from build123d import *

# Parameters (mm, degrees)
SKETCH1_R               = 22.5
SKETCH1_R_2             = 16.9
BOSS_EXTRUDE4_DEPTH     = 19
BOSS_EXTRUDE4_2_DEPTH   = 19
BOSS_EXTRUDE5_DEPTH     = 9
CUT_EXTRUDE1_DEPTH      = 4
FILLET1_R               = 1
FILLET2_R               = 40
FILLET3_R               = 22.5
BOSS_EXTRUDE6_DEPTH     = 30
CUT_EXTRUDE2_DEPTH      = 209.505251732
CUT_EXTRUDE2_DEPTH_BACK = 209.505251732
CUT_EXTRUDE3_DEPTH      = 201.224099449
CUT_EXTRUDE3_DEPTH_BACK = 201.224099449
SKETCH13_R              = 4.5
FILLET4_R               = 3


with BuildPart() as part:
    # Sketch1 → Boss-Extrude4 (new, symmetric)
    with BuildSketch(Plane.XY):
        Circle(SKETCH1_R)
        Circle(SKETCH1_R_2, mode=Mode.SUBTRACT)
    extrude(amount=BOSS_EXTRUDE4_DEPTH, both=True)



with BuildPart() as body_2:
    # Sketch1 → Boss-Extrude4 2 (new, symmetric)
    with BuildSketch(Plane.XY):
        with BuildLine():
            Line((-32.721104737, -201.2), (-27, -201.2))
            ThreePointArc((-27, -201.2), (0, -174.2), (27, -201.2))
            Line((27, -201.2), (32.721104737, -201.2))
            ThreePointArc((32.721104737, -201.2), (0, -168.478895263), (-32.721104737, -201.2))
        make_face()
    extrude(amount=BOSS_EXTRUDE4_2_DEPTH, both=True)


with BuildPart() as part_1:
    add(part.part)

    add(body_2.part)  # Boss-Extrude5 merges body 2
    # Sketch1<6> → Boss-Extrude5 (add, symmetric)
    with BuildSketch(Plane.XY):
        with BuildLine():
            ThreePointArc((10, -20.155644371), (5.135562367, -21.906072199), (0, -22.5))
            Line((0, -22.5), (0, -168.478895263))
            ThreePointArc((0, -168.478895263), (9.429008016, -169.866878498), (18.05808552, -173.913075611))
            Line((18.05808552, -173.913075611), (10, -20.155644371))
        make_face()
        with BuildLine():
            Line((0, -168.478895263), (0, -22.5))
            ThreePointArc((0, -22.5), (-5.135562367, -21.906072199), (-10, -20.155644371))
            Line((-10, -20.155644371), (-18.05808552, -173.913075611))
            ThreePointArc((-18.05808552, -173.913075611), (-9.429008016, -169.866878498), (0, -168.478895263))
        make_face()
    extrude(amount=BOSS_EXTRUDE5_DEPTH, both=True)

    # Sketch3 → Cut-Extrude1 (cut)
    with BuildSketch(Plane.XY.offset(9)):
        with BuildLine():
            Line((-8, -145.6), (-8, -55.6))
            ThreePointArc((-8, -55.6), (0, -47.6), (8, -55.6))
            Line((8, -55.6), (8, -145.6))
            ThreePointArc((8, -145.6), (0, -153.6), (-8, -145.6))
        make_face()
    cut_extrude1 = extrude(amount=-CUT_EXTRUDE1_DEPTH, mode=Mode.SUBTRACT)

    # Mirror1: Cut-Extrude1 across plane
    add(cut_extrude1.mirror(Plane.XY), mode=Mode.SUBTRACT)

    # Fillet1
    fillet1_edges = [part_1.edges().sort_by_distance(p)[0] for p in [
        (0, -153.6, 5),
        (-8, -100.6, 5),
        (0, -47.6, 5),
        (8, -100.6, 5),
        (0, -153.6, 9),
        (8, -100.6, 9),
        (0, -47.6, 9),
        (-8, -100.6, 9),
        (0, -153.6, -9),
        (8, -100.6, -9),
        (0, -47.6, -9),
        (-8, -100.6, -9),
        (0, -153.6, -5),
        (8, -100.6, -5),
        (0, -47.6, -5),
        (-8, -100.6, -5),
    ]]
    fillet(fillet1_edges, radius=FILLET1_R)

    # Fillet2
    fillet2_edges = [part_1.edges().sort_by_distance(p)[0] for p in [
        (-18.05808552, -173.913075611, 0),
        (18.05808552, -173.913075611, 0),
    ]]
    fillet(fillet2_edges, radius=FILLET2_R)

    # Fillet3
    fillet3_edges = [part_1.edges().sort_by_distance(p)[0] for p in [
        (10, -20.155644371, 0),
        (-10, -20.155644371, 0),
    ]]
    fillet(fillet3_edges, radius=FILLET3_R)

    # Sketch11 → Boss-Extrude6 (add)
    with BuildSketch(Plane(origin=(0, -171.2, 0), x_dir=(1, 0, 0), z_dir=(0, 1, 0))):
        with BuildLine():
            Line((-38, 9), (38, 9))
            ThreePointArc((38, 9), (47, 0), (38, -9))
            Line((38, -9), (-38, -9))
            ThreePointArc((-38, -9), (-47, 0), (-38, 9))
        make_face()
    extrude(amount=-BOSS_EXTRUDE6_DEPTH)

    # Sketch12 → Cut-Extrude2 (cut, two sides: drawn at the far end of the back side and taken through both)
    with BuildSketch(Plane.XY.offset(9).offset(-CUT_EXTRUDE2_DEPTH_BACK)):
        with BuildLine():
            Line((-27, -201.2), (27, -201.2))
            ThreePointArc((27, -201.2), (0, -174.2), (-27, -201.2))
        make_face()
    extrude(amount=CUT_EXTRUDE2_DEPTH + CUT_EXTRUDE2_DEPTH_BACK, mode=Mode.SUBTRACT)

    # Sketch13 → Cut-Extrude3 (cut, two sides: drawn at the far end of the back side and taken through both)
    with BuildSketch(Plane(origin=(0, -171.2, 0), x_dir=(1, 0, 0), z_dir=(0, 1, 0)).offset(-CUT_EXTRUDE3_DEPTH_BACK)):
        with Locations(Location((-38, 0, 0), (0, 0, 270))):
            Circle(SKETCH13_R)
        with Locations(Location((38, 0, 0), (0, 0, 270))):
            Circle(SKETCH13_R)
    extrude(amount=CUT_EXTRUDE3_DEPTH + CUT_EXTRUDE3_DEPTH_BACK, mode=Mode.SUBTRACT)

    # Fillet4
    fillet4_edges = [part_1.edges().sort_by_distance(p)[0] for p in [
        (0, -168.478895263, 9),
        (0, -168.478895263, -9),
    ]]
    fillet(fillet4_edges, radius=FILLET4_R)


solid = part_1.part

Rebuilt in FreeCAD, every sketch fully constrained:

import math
import FreeCAD as App
import Part
import Sketcher
Q = App.Units.Quantity


def edges_at(feature, points):
    """Names of the edges that pass closest to the given points."""
    edges = feature.Shape.Edges
    near = lambda p: min(range(len(edges)), key=lambda i: edges[i].distToShape(Part.Vertex(*p))[0])
    return sorted({f"Edge{near(p) + 1}" for p in points})

doc = App.newDocument("Part")
params = doc.addObject("Spreadsheet::Sheet", "Params")
for row, (alias, value) in enumerate([
    ("sketch1_diameter", "45 mm"),
    ("sketch1_diameter2", "33.8 mm"),
    ("pad1_length", "38 mm"),
    ("sketch2_radius", "27 mm"),
    ("pad2_length", "38 mm"),
    ("sketch3_radius", "22.5 mm"),
    ("pad3_length", "18 mm"),
    ("sketch4_radius", "8 mm"),
    ("sketch4_height", "90 mm"),
    ("pocket1_length", "4 mm"),
    ("fillet_radius", "1 mm"),
    ("fillet2_radius", "40 mm"),
    ("fillet3_radius", "22.5 mm"),
    ("sketch5_radius", "9 mm"),
    ("sketch5_width", "76 mm"),
    ("pad4_length", "30 mm"),
    ("sketch6_radius", "27 mm"),
    ("sketch7_diameter", "9 mm"),
    ("fillet4_radius", "3 mm"),
], start=1):
    params.set(f"A{row}", alias)
    params.set(f"B{row}", "=" + value)
    params.setAlias(f"B{row}", alias)

body = doc.addObject("PartDesign::Body", "Body")

sketch1 = body.newObject("Sketcher::SketchObject", "Sketch")
sketch1.AttachmentSupport = (doc.getObject("XY_Plane"), [""])
sketch1.MapMode = "FlatFace"
sketch1.addGeometry([
    Part.Circle(App.Vector(0, 0, 0), App.Vector(0, 0, 1), 22.5),
    Part.Circle(App.Vector(0, 0, 0), App.Vector(0, 0, 1), 16.9),
], False)
sketch1.addConstraint([
    Sketcher.Constraint("Coincident", 0, 3, -1, 1),
    Sketcher.Constraint("Coincident", 1, 3, -1, 1),
    Sketcher.Constraint("Diameter", 0, Q("45 mm")),
    Sketcher.Constraint("Diameter", 1, Q("33.8 mm")),
])
sketch1.setExpression("Constraints[2]", "Params.sketch1_diameter")
sketch1.setExpression("Constraints[3]", "Params.sketch1_diameter2")
pad1 = body.newObject("PartDesign::Pad", "Pad")
pad1.Profile = sketch1
pad1.setExpression("Length", "Params.pad1_length")
pad1.Midplane = True
body2 = doc.addObject("PartDesign::Body", "Body001")

sketch2 = body2.newObject("Sketcher::SketchObject", "Sketch001")
sketch2.AttachmentSupport = (doc.getObject("XY_Plane001"), [""])
sketch2.MapMode = "FlatFace"
sketch2.addGeometry([
    Part.LineSegment(App.Vector(-32.721105, -201.2, 0), App.Vector(-27, -201.2, 0)),
    Part.ArcOfCircle(Part.Circle(App.Vector(0, -201.2, 0), App.Vector(0, 0, 1), 27), math.radians(0), math.radians(180)),
    Part.LineSegment(App.Vector(27, -201.2, 0), App.Vector(32.721105, -201.2, 0)),
    Part.ArcOfCircle(Part.Circle(App.Vector(0, -201.2, 0), App.Vector(0, 0, 1), 32.721105), math.radians(0), math.radians(180)),
], False)
sketch2.addConstraint([
    Sketcher.Constraint("Coincident", 0, 2, 1, 2),
    Sketcher.Constraint("Coincident", 1, 1, 2, 1),
    Sketcher.Constraint("Coincident", 2, 2, 3, 1),
    Sketcher.Constraint("Coincident", 3, 2, 0, 1),
    Sketcher.Constraint("Horizontal", 0),
    Sketcher.Constraint("Horizontal", 2),
    Sketcher.Constraint("Coincident", 3, 3, 1, 3),
    Sketcher.Constraint("Symmetric", 0, 2, 1, 1, -2),
    Sketcher.Constraint("Horizontal", 3, 3, 0, 2),
    Sketcher.Constraint("Radius", 1, Q("27 mm")),
    Sketcher.Constraint("DistanceY", 1, 3, -1, 1, Q("201.2 mm")),
    Sketcher.Constraint("Radius", 3, Q("32.721105 mm")),
])
sketch2.setExpression("Constraints[9]", "Params.sketch2_radius")
pad2 = body2.newObject("PartDesign::Pad", "Pad001")
pad2.Profile = sketch2
pad2.setExpression("Length", "Params.pad2_length")
pad2.Midplane = True
body.AllowCompound = True
doc.recompute()

boolean = body.newObject("PartDesign::Boolean", "Boolean")
boolean.Type = "Fuse"
boolean.addObjects([body2])

sketch3 = body.newObject("Sketcher::SketchObject", "Sketch002")
sketch3.AttachmentSupport = (doc.getObject("XY_Plane"), [""])
sketch3.MapMode = "FlatFace"
sketch3.addGeometry([
    Part.ArcOfCircle(Part.Circle(App.Vector(0, 0, 0), App.Vector(0, 0, 1), 22.5), math.radians(-90), math.radians(-63.6122)),
    Part.ArcOfCircle(Part.Circle(App.Vector(0, 0, 0), App.Vector(0, 0, 1), 22.5), math.radians(-116.3878), math.radians(-90)),
    Part.LineSegment(App.Vector(-10, -20.155644, 0), App.Vector(-18.058086, -173.913076, 0)),
    Part.ArcOfCircle(Part.Circle(App.Vector(0, -201.2, 0), App.Vector(0, 0, 1), 32.721105), math.radians(90), math.radians(123.496005)),
    Part.ArcOfCircle(Part.Circle(App.Vector(0, -201.2, 0), App.Vector(0, 0, 1), 32.721105), math.radians(56.503995), math.radians(90)),
    Part.LineSegment(App.Vector(18.058086, -173.913076, 0), App.Vector(10, -20.155644, 0)),
], False)
sketch3.addConstraint([
    Sketcher.Constraint("Tangent", 0, 1, 1, 2),
    Sketcher.Constraint("Coincident", 1, 1, 2, 1),
    Sketcher.Constraint("Coincident", 2, 2, 3, 2),
    Sketcher.Constraint("Tangent", 3, 1, 4, 2),
    Sketcher.Constraint("Coincident", 4, 1, 5, 1),
    Sketcher.Constraint("Coincident", 5, 2, 0, 2),
    Sketcher.Constraint("Coincident", 0, 3, -1, 1),
    Sketcher.Constraint("Equal", 0, 1),
    Sketcher.Constraint("Equal", 3, 4),
    Sketcher.Constraint("Symmetric", 2, 2, 4, 1, -2),
    Sketcher.Constraint("PointOnObject", 0, 1, -2),
    Sketcher.Constraint("PointOnObject", 3, 1, -2),
    Sketcher.Constraint("Horizontal", 1, 1, 5, 2),
    Sketcher.Constraint("Radius", 0, Q("22.5 mm")),
    Sketcher.Constraint("Angle", 2, Q("-93 deg")),
    Sketcher.Constraint("DistanceX", 1, 1, -1, 1, Q("10 mm")),
    Sketcher.Constraint("DistanceY", 3, 3, -1, 1, Q("201.2 mm")),
    Sketcher.Constraint("Radius", 3, Q("32.721105 mm")),
])
sketch3.setExpression("Constraints[13]", "Params.sketch3_radius")
pad3 = body.newObject("PartDesign::Pad", "Pad002")
pad3.Profile = sketch3
pad3.setExpression("Length", "Params.pad3_length")
pad3.Midplane = True

sketch4 = body.newObject("Sketcher::SketchObject", "Sketch003")
sketch4.AttachmentSupport = (doc.getObject("XY_Plane"), [""])
sketch4.MapMode = "FlatFace"
sketch4.AttachmentOffset = App.Placement(App.Vector(0, 0, 9), App.Rotation())
sketch4.addGeometry([
    Part.LineSegment(App.Vector(-8, -55.6, 0), App.Vector(-8, -145.6, 0)),
    Part.ArcOfCircle(Part.Circle(App.Vector(0, -145.6, 0), App.Vector(0, 0, 1), 8), math.radians(180), math.radians(360)),
    Part.LineSegment(App.Vector(8, -145.6, 0), App.Vector(8, -55.6, 0)),
    Part.ArcOfCircle(Part.Circle(App.Vector(0, -55.6, 0), App.Vector(0, 0, 1), 8), math.radians(0), math.radians(180)),
], False)
sketch4.addConstraint([
    Sketcher.Constraint("Tangent", 0, 2, 1, 1),
    Sketcher.Constraint("Tangent", 1, 2, 2, 1),
    Sketcher.Constraint("Tangent", 2, 2, 3, 1),
    Sketcher.Constraint("Tangent", 3, 2, 0, 1),
    Sketcher.Constraint("Vertical", 0),
    Sketcher.Constraint("Vertical", 2),
    Sketcher.Constraint("PointOnObject", 1, 3, -2),
    Sketcher.Constraint("Radius", 1, Q("8 mm")),
    Sketcher.Constraint("DistanceY", 0, 2, 0, 1, Q("90 mm")),
    Sketcher.Constraint("DistanceY", 1, 3, -1, 1, Q("145.6 mm")),
])
sketch4.setExpression("Constraints[7]", "Params.sketch4_radius")
sketch4.setExpression("Constraints[8]", "Params.sketch4_height")
pocket1 = body.newObject("PartDesign::Pocket", "Pocket")
pocket1.Profile = sketch4
pocket1.setExpression("Length", "Params.pocket1_length")
doc.recompute()

mirrored = body.newObject("PartDesign::Mirrored", "Mirrored")
mirrored.Originals = [pocket1]
mirrored.MirrorPlane = (doc.getObject("XY_Plane"), [""])
body.Tip = mirrored
doc.recompute()

fillet = body.newObject("PartDesign::Fillet", "Fillet")
fillet.Base = (mirrored, edges_at(mirrored, [
    (0, -153.6, 5),
    (-8, -100.6, 5),
    (0, -47.6, 5),
    (8, -100.6, 5),
    (0, -153.6, 9),
    (8, -100.6, 9),
    (0, -47.6, 9),
    (-8, -100.6, 9),
    (0, -153.6, -9),
    (8, -100.6, -9),
    (0, -47.6, -9),
    (-8, -100.6, -9),
    (0, -153.6, -5),
    (8, -100.6, -5),
    (0, -47.6, -5),
    (-8, -100.6, -5),
]))
fillet.setExpression("Radius", "Params.fillet_radius")
doc.recompute()

fillet2 = body.newObject("PartDesign::Fillet", "Fillet001")
fillet2.Base = (fillet, edges_at(fillet, [(-18.058, -173.913, 0), (18.058, -173.913, 0)]))
fillet2.setExpression("Radius", "Params.fillet2_radius")
doc.recompute()

fillet3 = body.newObject("PartDesign::Fillet", "Fillet002")
fillet3.Base = (fillet2, edges_at(fillet2, [(10, -20.156, 0), (-10, -20.156, 0)]))
fillet3.setExpression("Radius", "Params.fillet3_radius")

sketch5 = body.newObject("Sketcher::SketchObject", "Sketch004")
sketch5.AttachmentSupport = (doc.getObject("XZ_Plane"), [""])
sketch5.MapMode = "FlatFace"
sketch5.AttachmentOffset = App.Placement(App.Vector(0, 0, 171.2), App.Rotation())
sketch5.addGeometry([
    Part.LineSegment(App.Vector(38, -9, 0), App.Vector(-38, -9, 0)),
    Part.ArcOfCircle(Part.Circle(App.Vector(-38, 0, 0), App.Vector(0, 0, 1), 9), math.radians(90), math.radians(270)),
    Part.LineSegment(App.Vector(-38, 9, 0), App.Vector(38, 9, 0)),
    Part.ArcOfCircle(Part.Circle(App.Vector(38, 0, 0), App.Vector(0, 0, 1), 9), math.radians(-90), math.radians(90)),
], False)
sketch5.addConstraint([
    Sketcher.Constraint("Tangent", 0, 2, 1, 2),
    Sketcher.Constraint("Tangent", 1, 1, 2, 1),
    Sketcher.Constraint("Tangent", 2, 2, 3, 2),
    Sketcher.Constraint("Tangent", 3, 1, 0, 1),
    Sketcher.Constraint("Horizontal", 0),
    Sketcher.Constraint("Horizontal", 2),
    Sketcher.Constraint("Symmetric", 1, 3, 3, 3, -1, 1),
    Sketcher.Constraint("Radius", 1, Q("9 mm")),
    Sketcher.Constraint("DistanceX", 0, 2, 0, 1, Q("76 mm")),
])
sketch5.setExpression("Constraints[7]", "Params.sketch5_radius")
sketch5.setExpression("Constraints[8]", "Params.sketch5_width")
pad4 = body.newObject("PartDesign::Pad", "Pad003")
pad4.Profile = sketch5
pad4.setExpression("Length", "Params.pad4_length")

sketch6 = body.newObject("Sketcher::SketchObject", "Sketch005")
sketch6.AttachmentSupport = (doc.getObject("XY_Plane"), [""])
sketch6.MapMode = "FlatFace"
sketch6.AttachmentOffset = App.Placement(App.Vector(0, 0, 9), App.Rotation())
sketch6.addGeometry([
    Part.LineSegment(App.Vector(-27, -201.2, 0), App.Vector(27, -201.2, 0)),
    Part.ArcOfCircle(Part.Circle(App.Vector(0, -201.2, 0), App.Vector(0, 0, 1), 27), math.radians(0), math.radians(180)),
], False)
sketch6.addConstraint([
    Sketcher.Constraint("Coincident", 0, 1, 1, 2),
    Sketcher.Constraint("Coincident", 1, 1, 0, 2),
    Sketcher.Constraint("Horizontal", 0),
    Sketcher.Constraint("PointOnObject", 1, 3, -2),
    Sketcher.Constraint("Horizontal", 1, 3, 0, 1),
    Sketcher.Constraint("Radius", 1, Q("27 mm")),
    Sketcher.Constraint("DistanceY", 1, 3, -1, 1, Q("201.2 mm")),
])
sketch6.setExpression("Constraints[5]", "Params.sketch6_radius")
pocket2 = body.newObject("PartDesign::Pocket", "Pocket001")
pocket2.Profile = sketch6
pocket2.Type = "ThroughAll"
pocket2.Midplane = True

sketch7 = body.newObject("Sketcher::SketchObject", "Sketch006")
sketch7.AttachmentSupport = (doc.getObject("XZ_Plane"), [""])
sketch7.MapMode = "FlatFace"
sketch7.AttachmentOffset = App.Placement(App.Vector(0, 0, 171.2), App.Rotation())
sketch7.addGeometry([
    Part.Circle(App.Vector(-38, 0, 0), App.Vector(0, 0, 1), 4.5),
    Part.Circle(App.Vector(38, 0, 0), App.Vector(0, 0, 1), 4.5),
], False)
sketch7.addConstraint([
    Sketcher.Constraint("Equal", 0, 1),
    Sketcher.Constraint("Symmetric", 0, 3, 1, 3, -1, 1),
    Sketcher.Constraint("PointOnObject", 0, 3, -1),
    Sketcher.Constraint("Diameter", 0, Q("9 mm")),
    Sketcher.Constraint("DistanceX", 0, 3, -1, 1, Q("38 mm")),
])
sketch7.setExpression("Constraints[3]", "Params.sketch7_diameter")
pocket3 = body.newObject("PartDesign::Pocket", "Pocket002")
pocket3.Profile = sketch7
pocket3.Type = "ThroughAll"
pocket3.Midplane = True
doc.recompute()

fillet4 = body.newObject("PartDesign::Fillet", "Fillet003")
fillet4.Base = (pocket3, edges_at(pocket3, [(9.429, -169.867, 9), (-9.429, -169.867, -9)]))
fillet4.setExpression("Radius", "Params.fillet4_radius")

doc.recompute()
